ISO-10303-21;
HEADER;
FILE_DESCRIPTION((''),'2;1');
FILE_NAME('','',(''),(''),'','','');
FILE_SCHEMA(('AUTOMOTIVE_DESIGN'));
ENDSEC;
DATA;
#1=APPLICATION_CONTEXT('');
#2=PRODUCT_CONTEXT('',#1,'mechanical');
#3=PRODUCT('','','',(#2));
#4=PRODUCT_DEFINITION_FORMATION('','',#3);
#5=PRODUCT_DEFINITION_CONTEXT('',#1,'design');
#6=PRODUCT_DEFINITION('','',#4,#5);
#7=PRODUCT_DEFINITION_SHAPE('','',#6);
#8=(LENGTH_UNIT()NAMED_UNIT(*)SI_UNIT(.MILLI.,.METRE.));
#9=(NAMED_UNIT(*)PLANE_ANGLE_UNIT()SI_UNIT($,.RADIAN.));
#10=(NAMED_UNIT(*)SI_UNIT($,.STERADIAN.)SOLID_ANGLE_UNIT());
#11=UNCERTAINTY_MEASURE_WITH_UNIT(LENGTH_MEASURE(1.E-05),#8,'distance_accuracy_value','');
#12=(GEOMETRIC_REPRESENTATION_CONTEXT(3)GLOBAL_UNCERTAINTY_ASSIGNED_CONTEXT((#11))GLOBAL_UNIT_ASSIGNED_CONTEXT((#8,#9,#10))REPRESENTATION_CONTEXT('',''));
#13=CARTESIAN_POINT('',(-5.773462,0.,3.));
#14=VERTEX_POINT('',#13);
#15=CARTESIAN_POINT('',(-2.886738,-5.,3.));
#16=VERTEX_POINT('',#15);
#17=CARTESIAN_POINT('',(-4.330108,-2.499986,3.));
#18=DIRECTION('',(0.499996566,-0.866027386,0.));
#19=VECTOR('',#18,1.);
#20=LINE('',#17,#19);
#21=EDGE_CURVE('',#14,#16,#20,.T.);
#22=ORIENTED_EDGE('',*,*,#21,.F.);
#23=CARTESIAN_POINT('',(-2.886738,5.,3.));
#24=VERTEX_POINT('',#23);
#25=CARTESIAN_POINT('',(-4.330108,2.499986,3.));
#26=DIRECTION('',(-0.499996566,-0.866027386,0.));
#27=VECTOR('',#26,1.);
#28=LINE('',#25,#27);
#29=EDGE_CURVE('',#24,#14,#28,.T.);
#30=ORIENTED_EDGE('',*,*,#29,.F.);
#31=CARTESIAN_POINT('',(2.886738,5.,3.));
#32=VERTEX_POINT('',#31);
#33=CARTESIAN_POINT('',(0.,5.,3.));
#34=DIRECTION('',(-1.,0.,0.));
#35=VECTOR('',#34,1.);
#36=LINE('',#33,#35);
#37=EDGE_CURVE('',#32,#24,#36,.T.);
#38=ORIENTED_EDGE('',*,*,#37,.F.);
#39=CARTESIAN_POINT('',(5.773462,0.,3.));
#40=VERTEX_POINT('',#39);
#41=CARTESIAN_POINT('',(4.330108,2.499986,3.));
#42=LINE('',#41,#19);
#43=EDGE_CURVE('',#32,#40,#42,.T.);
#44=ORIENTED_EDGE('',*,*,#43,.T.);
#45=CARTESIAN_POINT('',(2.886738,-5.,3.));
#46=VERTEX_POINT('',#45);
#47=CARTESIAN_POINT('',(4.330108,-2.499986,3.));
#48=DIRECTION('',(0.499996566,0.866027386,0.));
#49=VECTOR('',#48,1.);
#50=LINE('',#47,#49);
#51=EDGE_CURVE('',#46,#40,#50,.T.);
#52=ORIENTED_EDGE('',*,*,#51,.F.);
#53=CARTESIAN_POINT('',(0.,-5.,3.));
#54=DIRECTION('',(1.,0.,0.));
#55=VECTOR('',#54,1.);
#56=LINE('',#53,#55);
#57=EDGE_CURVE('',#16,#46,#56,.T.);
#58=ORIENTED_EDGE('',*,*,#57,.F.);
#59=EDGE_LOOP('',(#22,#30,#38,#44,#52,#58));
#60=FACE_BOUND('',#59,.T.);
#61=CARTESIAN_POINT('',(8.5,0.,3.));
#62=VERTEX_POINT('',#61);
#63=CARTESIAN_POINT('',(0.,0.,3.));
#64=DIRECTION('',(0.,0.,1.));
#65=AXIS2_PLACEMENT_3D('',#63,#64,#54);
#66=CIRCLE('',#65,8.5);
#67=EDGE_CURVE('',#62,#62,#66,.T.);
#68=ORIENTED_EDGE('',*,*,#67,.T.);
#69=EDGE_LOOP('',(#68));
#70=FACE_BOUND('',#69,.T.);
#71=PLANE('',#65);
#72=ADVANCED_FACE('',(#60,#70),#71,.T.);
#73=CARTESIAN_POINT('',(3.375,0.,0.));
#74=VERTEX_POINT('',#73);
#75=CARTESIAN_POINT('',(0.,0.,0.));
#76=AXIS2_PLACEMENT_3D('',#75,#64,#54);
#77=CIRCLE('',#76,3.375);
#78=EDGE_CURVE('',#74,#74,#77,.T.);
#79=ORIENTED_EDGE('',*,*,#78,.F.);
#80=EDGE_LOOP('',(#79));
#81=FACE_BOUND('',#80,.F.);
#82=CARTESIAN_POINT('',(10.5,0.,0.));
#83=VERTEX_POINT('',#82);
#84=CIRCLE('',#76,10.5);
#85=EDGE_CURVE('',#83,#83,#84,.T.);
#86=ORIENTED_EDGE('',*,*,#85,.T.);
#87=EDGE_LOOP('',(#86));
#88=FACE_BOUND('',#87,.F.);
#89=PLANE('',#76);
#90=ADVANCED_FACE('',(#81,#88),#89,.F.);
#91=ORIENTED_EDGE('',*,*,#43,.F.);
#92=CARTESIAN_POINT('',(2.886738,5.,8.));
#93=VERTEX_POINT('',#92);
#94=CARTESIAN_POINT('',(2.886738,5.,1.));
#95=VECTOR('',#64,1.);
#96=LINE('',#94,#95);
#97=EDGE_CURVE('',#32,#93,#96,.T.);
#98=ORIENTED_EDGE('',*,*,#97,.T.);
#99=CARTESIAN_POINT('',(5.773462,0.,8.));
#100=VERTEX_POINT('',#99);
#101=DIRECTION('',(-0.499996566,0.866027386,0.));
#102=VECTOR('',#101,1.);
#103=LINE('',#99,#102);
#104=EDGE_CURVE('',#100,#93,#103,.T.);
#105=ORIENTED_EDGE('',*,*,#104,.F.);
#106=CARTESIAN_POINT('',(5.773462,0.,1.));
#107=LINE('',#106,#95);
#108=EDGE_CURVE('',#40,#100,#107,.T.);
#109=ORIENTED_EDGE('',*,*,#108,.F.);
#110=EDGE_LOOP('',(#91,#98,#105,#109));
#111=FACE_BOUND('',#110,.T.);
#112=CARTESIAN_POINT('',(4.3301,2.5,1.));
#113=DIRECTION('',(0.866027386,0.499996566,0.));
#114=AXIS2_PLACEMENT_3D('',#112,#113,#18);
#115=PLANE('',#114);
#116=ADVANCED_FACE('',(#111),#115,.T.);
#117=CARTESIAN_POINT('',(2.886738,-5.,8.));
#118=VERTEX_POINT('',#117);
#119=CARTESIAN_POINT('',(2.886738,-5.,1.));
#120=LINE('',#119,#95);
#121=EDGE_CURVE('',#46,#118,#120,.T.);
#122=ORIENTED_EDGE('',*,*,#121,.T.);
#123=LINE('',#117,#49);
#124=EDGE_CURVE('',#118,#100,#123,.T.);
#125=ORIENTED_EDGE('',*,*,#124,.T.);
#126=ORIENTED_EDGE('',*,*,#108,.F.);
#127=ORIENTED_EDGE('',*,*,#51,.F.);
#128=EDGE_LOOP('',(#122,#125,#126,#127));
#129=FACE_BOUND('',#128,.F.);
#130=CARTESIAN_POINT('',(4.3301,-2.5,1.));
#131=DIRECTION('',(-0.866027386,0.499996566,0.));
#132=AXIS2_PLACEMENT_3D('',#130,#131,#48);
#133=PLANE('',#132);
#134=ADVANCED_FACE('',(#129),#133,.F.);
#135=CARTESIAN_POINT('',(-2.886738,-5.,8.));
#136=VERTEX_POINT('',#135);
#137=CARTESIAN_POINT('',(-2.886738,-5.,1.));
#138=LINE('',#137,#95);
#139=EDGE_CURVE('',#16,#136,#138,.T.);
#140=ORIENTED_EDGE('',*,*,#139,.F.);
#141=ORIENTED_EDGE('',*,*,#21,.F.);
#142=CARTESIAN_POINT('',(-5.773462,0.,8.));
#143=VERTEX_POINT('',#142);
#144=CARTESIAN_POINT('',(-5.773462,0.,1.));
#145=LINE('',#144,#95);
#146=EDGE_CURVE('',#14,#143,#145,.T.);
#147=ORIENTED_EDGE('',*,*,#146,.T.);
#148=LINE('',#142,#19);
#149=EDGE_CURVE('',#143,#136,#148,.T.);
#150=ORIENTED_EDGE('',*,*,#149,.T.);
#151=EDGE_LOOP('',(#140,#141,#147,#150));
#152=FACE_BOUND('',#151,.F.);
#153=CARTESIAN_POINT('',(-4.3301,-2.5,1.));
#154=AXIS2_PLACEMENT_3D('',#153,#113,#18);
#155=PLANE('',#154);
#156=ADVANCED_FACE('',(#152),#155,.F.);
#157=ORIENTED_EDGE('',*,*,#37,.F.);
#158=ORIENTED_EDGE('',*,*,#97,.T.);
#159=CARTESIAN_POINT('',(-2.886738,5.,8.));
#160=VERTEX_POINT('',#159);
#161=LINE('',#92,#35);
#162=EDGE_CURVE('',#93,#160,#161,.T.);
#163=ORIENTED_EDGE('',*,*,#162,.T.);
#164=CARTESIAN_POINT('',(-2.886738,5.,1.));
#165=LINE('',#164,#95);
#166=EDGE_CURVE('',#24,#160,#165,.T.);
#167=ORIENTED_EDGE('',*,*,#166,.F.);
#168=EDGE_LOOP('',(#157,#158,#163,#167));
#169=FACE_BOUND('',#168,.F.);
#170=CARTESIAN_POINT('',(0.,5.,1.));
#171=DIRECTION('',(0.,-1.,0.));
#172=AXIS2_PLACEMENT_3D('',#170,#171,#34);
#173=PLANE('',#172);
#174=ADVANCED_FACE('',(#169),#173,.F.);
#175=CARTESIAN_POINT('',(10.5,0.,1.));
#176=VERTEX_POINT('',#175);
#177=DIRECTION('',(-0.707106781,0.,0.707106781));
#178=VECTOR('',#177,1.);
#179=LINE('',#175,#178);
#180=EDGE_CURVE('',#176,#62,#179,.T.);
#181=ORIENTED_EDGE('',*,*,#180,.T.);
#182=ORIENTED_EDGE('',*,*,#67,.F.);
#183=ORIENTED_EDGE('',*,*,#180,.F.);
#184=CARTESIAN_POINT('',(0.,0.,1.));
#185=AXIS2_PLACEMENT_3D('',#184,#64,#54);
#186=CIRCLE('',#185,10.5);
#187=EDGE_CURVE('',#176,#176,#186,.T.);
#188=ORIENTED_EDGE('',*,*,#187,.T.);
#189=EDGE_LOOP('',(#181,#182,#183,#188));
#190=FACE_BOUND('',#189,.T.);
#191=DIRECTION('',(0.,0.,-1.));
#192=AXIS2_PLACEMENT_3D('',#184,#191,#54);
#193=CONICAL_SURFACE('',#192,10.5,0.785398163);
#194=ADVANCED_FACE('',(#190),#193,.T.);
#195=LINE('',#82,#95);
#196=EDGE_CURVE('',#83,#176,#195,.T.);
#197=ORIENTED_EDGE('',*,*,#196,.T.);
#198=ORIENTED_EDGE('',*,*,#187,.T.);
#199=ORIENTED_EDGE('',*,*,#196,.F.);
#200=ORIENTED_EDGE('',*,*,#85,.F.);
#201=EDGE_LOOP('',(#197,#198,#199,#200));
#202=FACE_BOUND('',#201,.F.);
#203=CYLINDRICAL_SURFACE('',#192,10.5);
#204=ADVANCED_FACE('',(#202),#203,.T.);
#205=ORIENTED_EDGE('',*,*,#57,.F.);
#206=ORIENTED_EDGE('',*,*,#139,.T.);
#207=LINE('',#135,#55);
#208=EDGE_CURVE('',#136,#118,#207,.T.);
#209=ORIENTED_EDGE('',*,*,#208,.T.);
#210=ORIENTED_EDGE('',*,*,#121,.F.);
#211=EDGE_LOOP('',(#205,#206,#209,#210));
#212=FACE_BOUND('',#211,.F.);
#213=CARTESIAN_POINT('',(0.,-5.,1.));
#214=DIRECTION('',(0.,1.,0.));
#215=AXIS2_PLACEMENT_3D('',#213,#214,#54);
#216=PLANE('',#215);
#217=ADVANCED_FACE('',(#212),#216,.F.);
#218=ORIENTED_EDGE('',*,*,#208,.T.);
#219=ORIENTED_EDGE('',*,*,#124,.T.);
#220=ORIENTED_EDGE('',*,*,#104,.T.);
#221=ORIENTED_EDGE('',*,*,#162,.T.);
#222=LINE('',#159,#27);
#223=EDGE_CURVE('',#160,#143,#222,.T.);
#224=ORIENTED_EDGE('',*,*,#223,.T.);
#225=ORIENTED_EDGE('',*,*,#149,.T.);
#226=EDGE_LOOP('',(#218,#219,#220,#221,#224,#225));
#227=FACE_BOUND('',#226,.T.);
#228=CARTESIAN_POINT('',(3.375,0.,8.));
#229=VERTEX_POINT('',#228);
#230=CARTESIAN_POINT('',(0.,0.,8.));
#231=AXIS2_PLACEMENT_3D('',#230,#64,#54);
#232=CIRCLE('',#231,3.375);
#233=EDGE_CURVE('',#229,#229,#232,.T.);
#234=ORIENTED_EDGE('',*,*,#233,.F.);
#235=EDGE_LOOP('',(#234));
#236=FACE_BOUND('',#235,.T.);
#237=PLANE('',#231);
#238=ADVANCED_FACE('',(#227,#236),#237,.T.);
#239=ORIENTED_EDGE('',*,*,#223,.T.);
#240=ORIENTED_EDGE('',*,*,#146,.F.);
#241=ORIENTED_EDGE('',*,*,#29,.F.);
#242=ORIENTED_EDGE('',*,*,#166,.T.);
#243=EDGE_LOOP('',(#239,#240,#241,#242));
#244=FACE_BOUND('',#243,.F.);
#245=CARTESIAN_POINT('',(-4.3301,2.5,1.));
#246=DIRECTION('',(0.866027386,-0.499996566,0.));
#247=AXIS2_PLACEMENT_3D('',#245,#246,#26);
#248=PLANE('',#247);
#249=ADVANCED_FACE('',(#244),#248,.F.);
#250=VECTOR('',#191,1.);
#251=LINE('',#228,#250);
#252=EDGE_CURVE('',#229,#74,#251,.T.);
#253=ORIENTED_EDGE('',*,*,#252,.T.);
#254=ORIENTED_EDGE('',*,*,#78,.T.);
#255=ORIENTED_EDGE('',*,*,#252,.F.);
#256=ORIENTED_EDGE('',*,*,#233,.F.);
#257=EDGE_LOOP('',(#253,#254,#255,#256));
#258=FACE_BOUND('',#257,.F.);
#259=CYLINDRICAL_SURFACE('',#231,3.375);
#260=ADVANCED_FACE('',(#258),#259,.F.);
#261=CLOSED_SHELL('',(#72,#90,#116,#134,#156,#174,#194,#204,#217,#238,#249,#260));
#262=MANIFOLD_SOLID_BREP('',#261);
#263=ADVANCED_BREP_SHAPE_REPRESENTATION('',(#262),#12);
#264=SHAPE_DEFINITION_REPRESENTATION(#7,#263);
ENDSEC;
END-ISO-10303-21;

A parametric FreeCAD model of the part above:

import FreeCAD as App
import Part
import Sketcher
from FreeCAD import Vector
Q = App.Units.Quantity


def edges_at(feature, points):
    """Names of the edges that pass closest to the given points."""
    edges = feature.Shape.Edges
    near = lambda p: min(range(len(edges)), key=lambda i: edges[i].distToShape(Part.Vertex(*p))[0])
    return sorted({f"Edge{near(p) + 1}" for p in points})

doc = App.newDocument("Part")
params = doc.addObject("Spreadsheet::Sheet", "Params")
for row, (alias, value) in enumerate([
    ("sketch1_diameter", "21 mm"),
    ("pad1_length", "1 mm"),
    ("sketch2_diameter", "6.75 mm"),
    ("pad2_length", "7 mm"),
    ("sketch3_diameter", "21 mm"),
    ("pad3_length", "2 mm"),
    ("chamfer_size", "2 mm"),
    ("sketch4_diameter", "6.75 mm"),
    ("pocket1_length", "8 mm"),
], start=1):
    params.set(f"A{row}", alias)
    params.set(f"B{row}", "=" + value)
    params.setAlias(f"B{row}", alias)

body = doc.addObject("PartDesign::Body", "Body")

sketch1 = body.newObject("Sketcher::SketchObject", "Sketch")
sketch1.AttachmentSupport = (doc.getObject("XY_Plane"), [""])
sketch1.MapMode = "FlatFace"
sketch1.addGeometry(Part.Circle(Vector(0, 0, 0), Vector(0, 0, 1), 10), False)
sketch1.addConstraint([
    Sketcher.Constraint("Coincident", 0, 3, -1, 1),
    Sketcher.Constraint("Diameter", 0, Q("21 mm")),
])
sketch1.setExpression("Constraints[1]", "Params.sketch1_diameter")
pad1 = body.newObject("PartDesign::Pad", "Pad")
pad1.Profile = sketch1
pad1.setExpression("Length", "Params.pad1_length")

sketch2 = body.newObject("Sketcher::SketchObject", "Sketch001")
sketch2.AttachmentSupport = (doc.getObject("XY_Plane"), [""])
sketch2.MapMode = "FlatFace"
sketch2.AttachmentOffset = App.Placement(Vector(0, 0, 1), App.Rotation())
sketch2.addGeometry([
    Part.LineSegment(Vector(5.8, 0, 0), Vector(2.9, 5, 0)),
    Part.LineSegment(Vector(2.9, 5, 0), Vector(-2.9, 5, 0)),
    Part.LineSegment(Vector(-2.9, 5, 0), Vector(-5.8, 0, 0)),
    Part.LineSegment(Vector(-5.8, 0, 0), Vector(-2.9, -5, 0)),
    Part.LineSegment(Vector(-2.9, -5, 0), Vector(2.9, -5, 0)),
    Part.LineSegment(Vector(2.9, -5, 0), Vector(5.8, 0, 0)),
    Part.Circle(Vector(0, 0, 0), Vector(0, 0, 1), 3.4),
], False)
sketch2.addConstraint([
    Sketcher.Constraint("Coincident", 0, 2, 1, 1),
    Sketcher.Constraint("Coincident", 1, 2, 2, 1),
    Sketcher.Constraint("Coincident", 2, 2, 3, 1),
    Sketcher.Constraint("Coincident", 3, 2, 4, 1),
    Sketcher.Constraint("Coincident", 4, 2, 5, 1),
    Sketcher.Constraint("Coincident", 5, 2, 0, 1),
    Sketcher.Constraint("Horizontal", 1),
    Sketcher.Constraint("Horizontal", 4),
    Sketcher.Constraint("Coincident", 6, 3, -1, 1),
    Sketcher.Constraint("Symmetric", 0, 2, 3, 2, -1, 1),
    Sketcher.Constraint("Symmetric", 2, 2, 5, 2, -1, 1),
    Sketcher.Constraint("PointOnObject", 2, 2, -1),
    Sketcher.Constraint("Parallel", 2, 5),
    Sketcher.Constraint("Vertical", 1, 2, 3, 2),
    Sketcher.Constraint("Diameter", 6, Q("6.75 mm")),
    Sketcher.Constraint("DistanceY", 3, 2, 1, 2, Q("10 mm")),
    Sketcher.Constraint("Angle", 0, Q("119.9998 deg")),
    Sketcher.Constraint("DistanceX", 1, 2, 1, 1, Q("5.7735 mm")),
])
sketch2.setExpression("Constraints[14]", "Params.sketch2_diameter")
pad2 = body.newObject("PartDesign::Pad", "Pad001")
pad2.Profile = sketch2
pad2.setExpression("Length", "Params.pad2_length")

sketch3 = body.newObject("Sketcher::SketchObject", "Sketch002")
sketch3.AttachmentSupport = (doc.getObject("XY_Plane"), [""])
sketch3.MapMode = "FlatFace"
sketch3.AttachmentOffset = App.Placement(Vector(0, 0, 1), App.Rotation())
sketch3.addGeometry(Part.Circle(Vector(0, 0, 0), Vector(0, 0, 1), 10), False)
sketch3.addConstraint([
    Sketcher.Constraint("Coincident", 0, 3, -1, 1),
    Sketcher.Constraint("Diameter", 0, Q("21 mm")),
])
sketch3.setExpression("Constraints[1]", "Params.sketch3_diameter")
pad3 = body.newObject("PartDesign::Pad", "Pad002")
pad3.Profile = sketch3
pad3.setExpression("Length", "Params.pad3_length")
doc.recompute()

chamfer = body.newObject("PartDesign::Chamfer", "Chamfer")
chamfer.Base = (pad3, edges_at(pad3, [(-10.5, 0, 3)]))
chamfer.setExpression("Size", "Params.chamfer_size")

sketch4 = body.newObject("Sketcher::SketchObject", "Sketch003")
sketch4.AttachmentSupport = (doc.getObject("XY_Plane"), [""])
sketch4.MapMode = "FlatFace"
sketch4.AttachmentOffset = App.Placement(Vector(0, 0, 8), App.Rotation())
sketch4.addGeometry(Part.Circle(Vector(0, 0, 0), Vector(0, 0, 1), 3.4), False)
sketch4.addConstraint([
    Sketcher.Constraint("Coincident", 0, 3, -1, 1),
    Sketcher.Constraint("Diameter", 0, Q("6.75 mm")),
])
sketch4.setExpression("Constraints[1]", "Params.sketch4_diameter")
pocket1 = body.newObject("PartDesign::Pocket", "Pocket")
pocket1.Profile = sketch4
pocket1.setExpression("Length", "Params.pocket1_length")

doc.recompute()
